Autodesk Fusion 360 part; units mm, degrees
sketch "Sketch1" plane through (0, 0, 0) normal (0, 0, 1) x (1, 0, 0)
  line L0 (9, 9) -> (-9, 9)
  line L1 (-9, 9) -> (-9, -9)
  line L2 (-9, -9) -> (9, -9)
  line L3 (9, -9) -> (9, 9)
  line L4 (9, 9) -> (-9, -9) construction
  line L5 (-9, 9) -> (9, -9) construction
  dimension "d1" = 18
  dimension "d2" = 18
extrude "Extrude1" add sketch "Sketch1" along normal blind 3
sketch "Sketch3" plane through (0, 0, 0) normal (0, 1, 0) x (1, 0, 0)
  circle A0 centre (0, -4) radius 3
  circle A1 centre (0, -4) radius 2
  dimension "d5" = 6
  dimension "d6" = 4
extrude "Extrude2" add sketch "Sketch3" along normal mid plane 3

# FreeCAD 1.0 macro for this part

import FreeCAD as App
import Part
import Sketcher

V = App.Vector

doc = App.newDocument("Part")
body = doc.addObject("PartDesign::Body", "Body")

sketch1 = body.newObject("Sketcher::SketchObject", "Sketch")
sketch1.AttachmentSupport = (doc.getObject("XY_Plane"), [""])
sketch1.MapMode = "FlatFace"
sketch1.addGeometry([
    Part.LineSegment(V(9, -9, 0), V(9, 9, 0)),
    Part.LineSegment(V(9, 9, 0), V(-9, 9, 0)),
    Part.LineSegment(V(-9, 9, 0), V(-9, -9, 0)),
    Part.LineSegment(V(-9, -9, 0), V(9, -9, 0)),
], False)
sketch1.addConstraint([
    Sketcher.Constraint("Coincident", 0, 2, 1, 1),
    Sketcher.Constraint("Coincident", 1, 2, 2, 1),
    Sketcher.Constraint("Coincident", 2, 2, 3, 1),
    Sketcher.Constraint("Coincident", 3, 2, 0, 1),
    Sketcher.Constraint("Vertical", 0),
    Sketcher.Constraint("Horizontal", 1),
    Sketcher.Constraint("Vertical", 2),
    Sketcher.Constraint("Horizontal", 3),
    Sketcher.Constraint("Symmetric", 0, 2, 2, 2, -1, 1),
    Sketcher.Constraint("Equal", 3, 0),
    Sketcher.Constraint("DistanceX", 1, 2, 1, 1, 18.0),
])
pad1 = body.newObject("PartDesign::Pad", "Pad")
pad1.Profile = sketch1
pad1.Length = 3

sketch2 = body.newObject("Sketcher::SketchObject", "Sketch001")
sketch2.AttachmentSupport = (doc.getObject("XZ_Plane"), [""])
sketch2.MapMode = "FlatFace"
sketch2.addGeometry([
    Part.Circle(V(0, 4, 0), V(0, 0, 1), 3),
    Part.Circle(V(0, 4, 0), V(0, 0, 1), 2),
], False)
sketch2.addConstraint([
    Sketcher.Constraint("Coincident", 1, 3, 0, 3),
    Sketcher.Constraint("PointOnObject", 0, 3, -2),
    Sketcher.Constraint("Diameter", 0, 6.0),
    Sketcher.Constraint("Diameter", 1, 4.0),
    Sketcher.Constraint("DistanceY", -1, 1, 0, 3, 4.0),
])
pad2 = body.newObject("PartDesign::Pad", "Pad001")
pad2.Profile = sketch2
pad2.Length = 3
pad2.Midplane = True

doc.recompute()
